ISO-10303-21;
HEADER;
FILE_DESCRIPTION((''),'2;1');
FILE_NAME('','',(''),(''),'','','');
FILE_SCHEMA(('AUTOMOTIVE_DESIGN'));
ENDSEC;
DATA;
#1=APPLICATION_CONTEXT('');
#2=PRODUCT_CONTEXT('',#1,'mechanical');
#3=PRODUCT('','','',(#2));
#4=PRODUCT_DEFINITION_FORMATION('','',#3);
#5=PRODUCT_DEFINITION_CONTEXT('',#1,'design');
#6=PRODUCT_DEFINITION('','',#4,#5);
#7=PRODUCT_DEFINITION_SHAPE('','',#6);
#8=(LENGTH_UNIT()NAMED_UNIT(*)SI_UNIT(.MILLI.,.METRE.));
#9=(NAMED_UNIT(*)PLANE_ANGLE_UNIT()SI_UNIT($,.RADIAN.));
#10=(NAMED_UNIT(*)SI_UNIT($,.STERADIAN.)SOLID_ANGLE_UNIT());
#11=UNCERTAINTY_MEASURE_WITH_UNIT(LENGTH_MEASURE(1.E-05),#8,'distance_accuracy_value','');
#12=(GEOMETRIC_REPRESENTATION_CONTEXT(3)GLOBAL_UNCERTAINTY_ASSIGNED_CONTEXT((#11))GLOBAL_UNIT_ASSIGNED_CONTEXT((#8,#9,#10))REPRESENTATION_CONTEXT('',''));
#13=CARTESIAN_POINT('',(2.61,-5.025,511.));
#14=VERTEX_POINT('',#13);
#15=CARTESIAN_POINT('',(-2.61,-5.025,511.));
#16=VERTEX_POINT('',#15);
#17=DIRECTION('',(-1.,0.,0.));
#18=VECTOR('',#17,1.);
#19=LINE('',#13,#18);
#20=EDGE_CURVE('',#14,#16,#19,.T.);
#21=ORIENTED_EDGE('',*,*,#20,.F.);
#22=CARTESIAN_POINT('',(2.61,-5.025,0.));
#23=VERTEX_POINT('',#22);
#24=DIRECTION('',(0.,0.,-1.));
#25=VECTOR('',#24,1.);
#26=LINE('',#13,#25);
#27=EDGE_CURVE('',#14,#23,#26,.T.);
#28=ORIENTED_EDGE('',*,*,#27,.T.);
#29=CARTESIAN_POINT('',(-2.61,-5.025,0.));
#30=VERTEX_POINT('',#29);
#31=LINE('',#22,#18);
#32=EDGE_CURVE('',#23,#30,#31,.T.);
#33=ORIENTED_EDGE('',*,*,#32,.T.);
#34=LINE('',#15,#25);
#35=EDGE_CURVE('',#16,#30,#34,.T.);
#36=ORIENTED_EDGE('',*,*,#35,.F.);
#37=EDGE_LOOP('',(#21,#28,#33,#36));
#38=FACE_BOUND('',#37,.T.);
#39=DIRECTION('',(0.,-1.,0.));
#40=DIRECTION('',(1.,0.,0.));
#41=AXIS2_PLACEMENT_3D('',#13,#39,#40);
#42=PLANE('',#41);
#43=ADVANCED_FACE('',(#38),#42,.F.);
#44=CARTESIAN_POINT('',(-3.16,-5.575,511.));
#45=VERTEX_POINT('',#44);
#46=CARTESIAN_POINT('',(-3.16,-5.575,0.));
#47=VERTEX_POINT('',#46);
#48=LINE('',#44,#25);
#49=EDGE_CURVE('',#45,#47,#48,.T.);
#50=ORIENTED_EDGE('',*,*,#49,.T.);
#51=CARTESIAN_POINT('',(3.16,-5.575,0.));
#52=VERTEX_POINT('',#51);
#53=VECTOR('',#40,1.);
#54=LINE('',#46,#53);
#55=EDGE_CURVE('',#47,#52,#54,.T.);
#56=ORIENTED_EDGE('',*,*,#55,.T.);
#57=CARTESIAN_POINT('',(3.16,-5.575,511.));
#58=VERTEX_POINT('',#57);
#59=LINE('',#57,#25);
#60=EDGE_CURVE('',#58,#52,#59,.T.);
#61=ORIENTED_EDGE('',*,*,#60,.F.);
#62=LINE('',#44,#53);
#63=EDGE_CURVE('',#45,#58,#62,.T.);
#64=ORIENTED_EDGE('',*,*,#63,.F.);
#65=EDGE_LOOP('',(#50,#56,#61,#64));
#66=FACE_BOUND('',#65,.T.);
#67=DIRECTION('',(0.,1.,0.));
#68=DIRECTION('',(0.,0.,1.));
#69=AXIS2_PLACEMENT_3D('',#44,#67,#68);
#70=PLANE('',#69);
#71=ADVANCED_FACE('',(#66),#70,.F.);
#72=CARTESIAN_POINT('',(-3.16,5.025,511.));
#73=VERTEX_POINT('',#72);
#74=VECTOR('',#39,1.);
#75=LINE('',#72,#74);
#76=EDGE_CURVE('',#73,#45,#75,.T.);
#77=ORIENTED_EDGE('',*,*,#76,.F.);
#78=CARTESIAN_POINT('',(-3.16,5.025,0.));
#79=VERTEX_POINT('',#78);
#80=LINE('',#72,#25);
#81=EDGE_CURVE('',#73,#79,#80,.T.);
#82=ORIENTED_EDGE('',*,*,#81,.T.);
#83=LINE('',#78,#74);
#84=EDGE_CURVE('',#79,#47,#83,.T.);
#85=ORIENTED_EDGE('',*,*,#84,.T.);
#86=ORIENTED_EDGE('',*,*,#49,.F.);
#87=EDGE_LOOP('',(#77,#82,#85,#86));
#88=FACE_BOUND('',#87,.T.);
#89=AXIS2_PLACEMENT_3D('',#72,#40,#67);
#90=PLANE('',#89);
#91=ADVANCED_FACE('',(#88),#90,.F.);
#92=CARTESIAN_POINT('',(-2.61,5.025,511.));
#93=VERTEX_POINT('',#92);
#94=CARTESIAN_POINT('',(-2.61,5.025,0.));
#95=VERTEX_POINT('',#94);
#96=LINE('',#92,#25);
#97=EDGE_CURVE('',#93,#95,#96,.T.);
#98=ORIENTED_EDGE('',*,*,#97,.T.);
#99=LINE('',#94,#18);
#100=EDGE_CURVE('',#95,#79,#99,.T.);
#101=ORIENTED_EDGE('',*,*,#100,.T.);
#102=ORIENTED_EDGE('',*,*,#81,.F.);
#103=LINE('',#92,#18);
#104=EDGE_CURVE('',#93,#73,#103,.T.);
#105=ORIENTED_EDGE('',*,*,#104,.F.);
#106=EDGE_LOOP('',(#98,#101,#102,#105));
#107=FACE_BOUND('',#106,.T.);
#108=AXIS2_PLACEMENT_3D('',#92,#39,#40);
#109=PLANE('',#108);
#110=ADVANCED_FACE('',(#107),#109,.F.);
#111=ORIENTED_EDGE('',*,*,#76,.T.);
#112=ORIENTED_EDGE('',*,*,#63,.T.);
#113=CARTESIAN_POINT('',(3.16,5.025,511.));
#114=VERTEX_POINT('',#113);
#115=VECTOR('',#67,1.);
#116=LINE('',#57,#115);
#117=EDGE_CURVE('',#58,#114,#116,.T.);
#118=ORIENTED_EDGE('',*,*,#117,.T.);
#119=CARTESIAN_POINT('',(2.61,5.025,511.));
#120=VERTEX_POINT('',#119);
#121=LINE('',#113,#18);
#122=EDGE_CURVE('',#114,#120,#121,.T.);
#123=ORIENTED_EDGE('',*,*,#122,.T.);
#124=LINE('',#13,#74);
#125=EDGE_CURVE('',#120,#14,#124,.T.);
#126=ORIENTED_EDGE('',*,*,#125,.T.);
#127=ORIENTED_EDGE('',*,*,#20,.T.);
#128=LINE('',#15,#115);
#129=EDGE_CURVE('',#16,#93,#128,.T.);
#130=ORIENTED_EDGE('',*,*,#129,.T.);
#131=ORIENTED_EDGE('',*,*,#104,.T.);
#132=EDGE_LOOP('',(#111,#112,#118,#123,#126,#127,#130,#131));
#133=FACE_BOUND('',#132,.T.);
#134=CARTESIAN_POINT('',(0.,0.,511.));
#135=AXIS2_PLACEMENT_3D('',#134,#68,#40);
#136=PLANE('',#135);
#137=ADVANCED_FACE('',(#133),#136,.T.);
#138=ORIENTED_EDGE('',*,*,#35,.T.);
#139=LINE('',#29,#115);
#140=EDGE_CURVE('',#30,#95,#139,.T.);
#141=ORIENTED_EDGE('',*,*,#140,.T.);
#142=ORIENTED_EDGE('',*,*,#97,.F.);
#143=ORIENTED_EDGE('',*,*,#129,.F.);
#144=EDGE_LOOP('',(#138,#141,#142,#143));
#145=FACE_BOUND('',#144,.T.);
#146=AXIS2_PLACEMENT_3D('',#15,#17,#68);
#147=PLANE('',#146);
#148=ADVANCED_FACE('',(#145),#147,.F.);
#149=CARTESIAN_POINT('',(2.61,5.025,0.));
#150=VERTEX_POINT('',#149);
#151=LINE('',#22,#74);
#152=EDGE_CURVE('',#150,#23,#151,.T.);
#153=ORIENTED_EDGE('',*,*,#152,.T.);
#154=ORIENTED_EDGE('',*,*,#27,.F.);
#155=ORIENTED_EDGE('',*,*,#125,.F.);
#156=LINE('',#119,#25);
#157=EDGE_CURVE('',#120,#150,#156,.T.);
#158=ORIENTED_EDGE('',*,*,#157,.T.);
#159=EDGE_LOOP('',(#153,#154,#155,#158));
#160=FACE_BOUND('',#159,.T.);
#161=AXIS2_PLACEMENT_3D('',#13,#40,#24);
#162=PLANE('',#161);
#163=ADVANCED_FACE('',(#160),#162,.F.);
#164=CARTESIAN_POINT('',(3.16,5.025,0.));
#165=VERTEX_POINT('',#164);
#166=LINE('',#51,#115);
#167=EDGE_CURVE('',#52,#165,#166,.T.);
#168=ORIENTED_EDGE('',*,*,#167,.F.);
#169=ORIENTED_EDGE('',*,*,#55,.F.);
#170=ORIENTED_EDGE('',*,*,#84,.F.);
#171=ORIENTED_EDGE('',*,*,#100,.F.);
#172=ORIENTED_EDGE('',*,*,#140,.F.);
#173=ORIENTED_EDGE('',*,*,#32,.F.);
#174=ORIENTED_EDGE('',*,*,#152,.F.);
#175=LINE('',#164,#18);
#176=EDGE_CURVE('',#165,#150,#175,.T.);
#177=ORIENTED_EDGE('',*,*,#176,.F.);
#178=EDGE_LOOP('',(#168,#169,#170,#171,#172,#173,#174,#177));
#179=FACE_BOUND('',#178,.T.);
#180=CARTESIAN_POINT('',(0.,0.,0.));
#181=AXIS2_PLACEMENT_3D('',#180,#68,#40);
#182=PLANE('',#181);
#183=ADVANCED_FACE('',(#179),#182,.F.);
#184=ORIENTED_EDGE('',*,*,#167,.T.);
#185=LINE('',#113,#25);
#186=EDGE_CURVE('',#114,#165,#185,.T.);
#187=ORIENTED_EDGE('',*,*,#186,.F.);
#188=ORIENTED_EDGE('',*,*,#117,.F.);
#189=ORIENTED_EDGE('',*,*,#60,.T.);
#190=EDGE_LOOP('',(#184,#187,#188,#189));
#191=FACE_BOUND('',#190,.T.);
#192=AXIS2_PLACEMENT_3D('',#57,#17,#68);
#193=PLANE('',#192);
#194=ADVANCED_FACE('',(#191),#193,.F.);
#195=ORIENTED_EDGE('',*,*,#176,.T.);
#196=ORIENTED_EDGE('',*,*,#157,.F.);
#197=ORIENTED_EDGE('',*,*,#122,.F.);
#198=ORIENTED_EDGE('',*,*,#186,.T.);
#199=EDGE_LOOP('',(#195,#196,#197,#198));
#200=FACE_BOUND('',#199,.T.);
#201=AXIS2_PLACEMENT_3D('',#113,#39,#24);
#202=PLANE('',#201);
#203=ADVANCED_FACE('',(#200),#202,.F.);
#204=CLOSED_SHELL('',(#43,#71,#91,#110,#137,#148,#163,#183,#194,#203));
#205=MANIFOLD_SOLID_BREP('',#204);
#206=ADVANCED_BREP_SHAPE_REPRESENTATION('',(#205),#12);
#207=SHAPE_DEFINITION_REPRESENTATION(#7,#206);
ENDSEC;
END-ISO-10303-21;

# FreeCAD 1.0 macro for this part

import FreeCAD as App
import Part
import Sketcher

doc = App.newDocument("Part")
body = doc.addObject("PartDesign::Body", "Body")

# Sketch on XY plane
sketch1 = body.newObject("Sketcher::SketchObject", "Sketch")
sketch1.AttachmentSupport = (doc.getObject("XY_Plane"), [""])
sketch1.MapMode = "FlatFace"
sketch1.addGeometry([
    Part.LineSegment(App.Vector(-2.61, 5.025, 0), App.Vector(-3.16, 5.025, 0)),  # 0
    Part.LineSegment(App.Vector(-3.16, 5.025, 0), App.Vector(-3.16, -5.575, 0)),  # 1
    Part.LineSegment(App.Vector(-3.16, -5.575, 0), App.Vector(3.16, -5.575, 0)),  # 2
    Part.LineSegment(App.Vector(3.16, -5.575, 0), App.Vector(3.16, 5.025, 0)),  # 3
    Part.LineSegment(App.Vector(3.16, 5.025, 0), App.Vector(2.61, 5.025, 0)),  # 4
    Part.LineSegment(App.Vector(2.61, 5.025, 0), App.Vector(2.61, -5.025, 0)),  # 5
    Part.LineSegment(App.Vector(2.61, -5.025, 0), App.Vector(-2.61, -5.025, 0)),  # 6
    Part.LineSegment(App.Vector(-2.61, -5.025, 0), App.Vector(-2.61, 5.025, 0)),  # 7
], False)
sketch1.addConstraint([
    Sketcher.Constraint("Coincident", 0, 2, 1, 1),
    Sketcher.Constraint("Coincident", 1, 2, 2, 1),
    Sketcher.Constraint("Coincident", 2, 2, 3, 1),
    Sketcher.Constraint("Coincident", 3, 2, 4, 1),
    Sketcher.Constraint("Coincident", 4, 2, 5, 1),
    Sketcher.Constraint("Coincident", 5, 2, 6, 1),
    Sketcher.Constraint("Coincident", 6, 2, 7, 1),
    Sketcher.Constraint("Coincident", 7, 2, 0, 1),
    Sketcher.Constraint("Horizontal", 0),
    Sketcher.Constraint("Vertical", 1),
    Sketcher.Constraint("Horizontal", 2),
    Sketcher.Constraint("Vertical", 3),
    Sketcher.Constraint("Horizontal", 4),
    Sketcher.Constraint("Vertical", 5),
    Sketcher.Constraint("Horizontal", 6),
    Sketcher.Constraint("Vertical", 7),
    Sketcher.Constraint("Symmetric", 4, 2, 6, 2, -1, 1),
    Sketcher.Constraint("Symmetric", 0, 2, 3, 2, -2),
    Sketcher.Constraint("DistanceY", 1, 2, 1, 1, 10.6),
    Sketcher.Constraint("DistanceX", 0, 2, 0, 1, 0.55),
    Sketcher.Constraint("DistanceX", 2, 1, 2, 2, 6.32),
    Sketcher.Constraint("DistanceY", 5, 2, 5, 1, 10.05),
])
pad1 = body.newObject("PartDesign::Pad", "Pad")
pad1.Profile = sketch1
pad1.Length = 511

doc.recompute()
